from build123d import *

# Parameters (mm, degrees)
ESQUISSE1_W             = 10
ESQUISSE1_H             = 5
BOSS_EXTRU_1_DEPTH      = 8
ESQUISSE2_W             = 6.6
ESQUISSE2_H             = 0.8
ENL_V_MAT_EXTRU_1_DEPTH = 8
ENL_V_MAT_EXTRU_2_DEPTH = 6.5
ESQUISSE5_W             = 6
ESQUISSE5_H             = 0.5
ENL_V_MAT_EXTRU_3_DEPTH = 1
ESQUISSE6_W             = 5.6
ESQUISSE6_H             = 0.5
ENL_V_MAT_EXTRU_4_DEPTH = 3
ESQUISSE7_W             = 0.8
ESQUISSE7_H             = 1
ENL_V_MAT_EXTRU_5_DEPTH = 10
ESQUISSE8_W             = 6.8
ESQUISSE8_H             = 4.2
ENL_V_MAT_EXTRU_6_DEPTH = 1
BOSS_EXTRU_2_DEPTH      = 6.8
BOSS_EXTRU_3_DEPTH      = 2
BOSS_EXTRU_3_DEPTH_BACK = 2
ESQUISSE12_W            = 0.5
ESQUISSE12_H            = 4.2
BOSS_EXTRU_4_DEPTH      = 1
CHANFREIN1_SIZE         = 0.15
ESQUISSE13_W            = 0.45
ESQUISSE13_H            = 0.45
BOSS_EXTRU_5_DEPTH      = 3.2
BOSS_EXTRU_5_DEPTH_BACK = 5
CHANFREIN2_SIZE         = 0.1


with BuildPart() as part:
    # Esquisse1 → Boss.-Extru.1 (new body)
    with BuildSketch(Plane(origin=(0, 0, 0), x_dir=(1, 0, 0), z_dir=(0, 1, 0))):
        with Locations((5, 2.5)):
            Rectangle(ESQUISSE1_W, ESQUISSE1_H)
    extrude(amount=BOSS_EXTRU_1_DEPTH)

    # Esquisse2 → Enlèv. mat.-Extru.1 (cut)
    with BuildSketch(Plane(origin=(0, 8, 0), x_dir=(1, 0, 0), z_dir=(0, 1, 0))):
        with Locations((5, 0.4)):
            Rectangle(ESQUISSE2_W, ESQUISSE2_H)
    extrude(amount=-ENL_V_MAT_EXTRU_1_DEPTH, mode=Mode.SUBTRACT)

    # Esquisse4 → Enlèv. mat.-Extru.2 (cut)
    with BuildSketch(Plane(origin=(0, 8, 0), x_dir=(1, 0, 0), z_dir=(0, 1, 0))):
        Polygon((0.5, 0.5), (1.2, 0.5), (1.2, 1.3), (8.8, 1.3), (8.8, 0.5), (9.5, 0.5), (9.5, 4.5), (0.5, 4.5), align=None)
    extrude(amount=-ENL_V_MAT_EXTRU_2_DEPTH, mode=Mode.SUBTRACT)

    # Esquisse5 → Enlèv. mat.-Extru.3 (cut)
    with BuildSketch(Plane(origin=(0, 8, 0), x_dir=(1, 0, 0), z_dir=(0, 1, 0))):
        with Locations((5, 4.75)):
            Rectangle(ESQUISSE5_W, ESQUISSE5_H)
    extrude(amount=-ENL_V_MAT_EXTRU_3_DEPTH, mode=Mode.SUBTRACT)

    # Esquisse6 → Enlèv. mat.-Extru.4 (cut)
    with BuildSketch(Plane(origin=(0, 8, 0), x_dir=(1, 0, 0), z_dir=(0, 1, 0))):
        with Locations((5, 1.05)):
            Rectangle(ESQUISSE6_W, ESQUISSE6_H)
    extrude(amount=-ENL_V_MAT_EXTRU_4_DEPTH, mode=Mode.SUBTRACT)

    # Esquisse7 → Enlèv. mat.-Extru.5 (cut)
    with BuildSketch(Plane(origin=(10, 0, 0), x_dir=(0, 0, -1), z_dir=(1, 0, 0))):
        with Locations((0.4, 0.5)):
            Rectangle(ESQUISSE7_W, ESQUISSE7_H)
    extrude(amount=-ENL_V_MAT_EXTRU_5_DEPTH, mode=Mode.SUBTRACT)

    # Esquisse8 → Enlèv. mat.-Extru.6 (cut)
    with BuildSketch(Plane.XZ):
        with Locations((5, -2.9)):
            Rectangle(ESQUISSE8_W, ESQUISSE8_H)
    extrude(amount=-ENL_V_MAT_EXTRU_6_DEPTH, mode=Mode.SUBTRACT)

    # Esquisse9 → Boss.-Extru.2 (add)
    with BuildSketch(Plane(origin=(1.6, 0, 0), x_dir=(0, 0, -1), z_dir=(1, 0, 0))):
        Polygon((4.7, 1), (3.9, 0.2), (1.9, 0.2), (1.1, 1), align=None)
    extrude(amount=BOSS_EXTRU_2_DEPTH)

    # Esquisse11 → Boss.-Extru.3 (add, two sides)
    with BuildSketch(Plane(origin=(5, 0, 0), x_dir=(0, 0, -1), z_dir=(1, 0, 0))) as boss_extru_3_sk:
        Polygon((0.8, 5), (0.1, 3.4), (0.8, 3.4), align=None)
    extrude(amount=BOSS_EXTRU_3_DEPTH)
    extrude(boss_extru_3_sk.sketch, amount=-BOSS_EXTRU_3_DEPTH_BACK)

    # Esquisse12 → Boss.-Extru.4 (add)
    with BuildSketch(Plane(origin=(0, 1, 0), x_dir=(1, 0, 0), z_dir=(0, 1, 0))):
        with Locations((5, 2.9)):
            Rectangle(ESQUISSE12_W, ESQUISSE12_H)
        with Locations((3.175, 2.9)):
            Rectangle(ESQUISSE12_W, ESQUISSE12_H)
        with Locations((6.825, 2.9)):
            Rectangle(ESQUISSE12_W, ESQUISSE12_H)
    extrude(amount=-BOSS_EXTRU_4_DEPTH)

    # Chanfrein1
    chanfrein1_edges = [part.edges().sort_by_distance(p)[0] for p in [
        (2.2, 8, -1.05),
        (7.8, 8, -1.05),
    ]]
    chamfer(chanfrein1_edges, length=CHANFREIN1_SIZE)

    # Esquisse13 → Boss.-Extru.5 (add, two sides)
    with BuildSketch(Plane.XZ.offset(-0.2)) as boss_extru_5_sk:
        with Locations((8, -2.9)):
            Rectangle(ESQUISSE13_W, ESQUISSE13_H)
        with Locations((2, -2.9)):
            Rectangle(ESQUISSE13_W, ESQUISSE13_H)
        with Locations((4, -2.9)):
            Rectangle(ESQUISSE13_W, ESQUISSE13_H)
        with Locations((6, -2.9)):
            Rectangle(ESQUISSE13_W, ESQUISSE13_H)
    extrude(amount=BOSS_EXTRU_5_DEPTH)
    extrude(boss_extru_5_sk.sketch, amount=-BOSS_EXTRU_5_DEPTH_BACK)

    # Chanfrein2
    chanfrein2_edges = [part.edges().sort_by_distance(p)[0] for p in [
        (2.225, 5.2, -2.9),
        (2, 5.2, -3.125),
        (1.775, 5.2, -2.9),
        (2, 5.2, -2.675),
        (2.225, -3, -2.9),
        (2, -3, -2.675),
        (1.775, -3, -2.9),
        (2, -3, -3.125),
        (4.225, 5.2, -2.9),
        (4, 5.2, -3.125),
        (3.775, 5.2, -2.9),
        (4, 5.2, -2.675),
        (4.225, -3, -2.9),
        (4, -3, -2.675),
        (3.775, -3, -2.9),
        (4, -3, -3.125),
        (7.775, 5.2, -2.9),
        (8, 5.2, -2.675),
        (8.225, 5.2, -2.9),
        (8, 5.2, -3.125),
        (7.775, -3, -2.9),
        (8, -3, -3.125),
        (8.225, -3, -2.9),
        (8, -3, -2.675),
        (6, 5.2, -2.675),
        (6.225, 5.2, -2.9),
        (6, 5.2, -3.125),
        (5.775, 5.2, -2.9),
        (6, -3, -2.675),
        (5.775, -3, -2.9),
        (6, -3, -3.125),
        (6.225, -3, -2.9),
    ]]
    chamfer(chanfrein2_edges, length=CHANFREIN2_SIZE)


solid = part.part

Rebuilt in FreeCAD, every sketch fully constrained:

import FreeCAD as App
import Part
import Sketcher


def edges_at(feature, points):
    """Names of the edges that pass closest to the given points."""
    edges = feature.Shape.Edges
    near = lambda p: min(range(len(edges)), key=lambda i: edges[i].distToShape(Part.Vertex(*p))[0])
    return sorted({f"Edge{near(p) + 1}" for p in points})

doc = App.newDocument("Part")
body = doc.addObject("PartDesign::Body", "Body")

sketch1 = body.newObject("Sketcher::SketchObject", "Sketch")
sketch1.AttachmentSupport = (doc.getObject("XZ_Plane"), [""])
sketch1.MapMode = "FlatFace"
sketch1.addGeometry([
    Part.LineSegment(App.Vector(0, -5, 0), App.Vector(0, 0, 0)),
    Part.LineSegment(App.Vector(0, 0, 0), App.Vector(10, 0, 0)),
    Part.LineSegment(App.Vector(10, 0, 0), App.Vector(10, -5, 0)),
    Part.LineSegment(App.Vector(10, -5, 0), App.Vector(0, -5, 0)),
], False)
sketch1.addConstraint([
    Sketcher.Constraint("Coincident", 0, 2, 1, 1),
    Sketcher.Constraint("Coincident", 1, 2, 2, 1),
    Sketcher.Constraint("Coincident", 2, 2, 3, 1),
    Sketcher.Constraint("Coincident", 3, 2, 0, 1),
    Sketcher.Constraint("Vertical", 0),
    Sketcher.Constraint("Horizontal", 1),
    Sketcher.Constraint("Vertical", 2),
    Sketcher.Constraint("Horizontal", 3),
    Sketcher.Constraint("Coincident", 0, 2, -1, 1),
    Sketcher.Constraint("DistanceX", 1, 1, 1, 2, 10.0),
    Sketcher.Constraint("DistanceY", 0, 1, 0, 2, 5.0),
])
pad1 = body.newObject("PartDesign::Pad", "Pad")
pad1.Profile = sketch1
pad1.Length = 8
pad1.Reversed = True

sketch2 = body.newObject("Sketcher::SketchObject", "Sketch001")
sketch2.AttachmentSupport = (doc.getObject("XZ_Plane"), [""])
sketch2.MapMode = "FlatFace"
sketch2.AttachmentOffset = App.Placement(App.Vector(0, 0, -8), App.Rotation())
sketch2.addGeometry([
    Part.LineSegment(App.Vector(1.7, -0.8, 0), App.Vector(1.7, 0, 0)),
    Part.LineSegment(App.Vector(1.7, 0, 0), App.Vector(8.3, 0, 0)),
    Part.LineSegment(App.Vector(8.3, 0, 0), App.Vector(8.3, -0.8, 0)),
    Part.LineSegment(App.Vector(8.3, -0.8, 0), App.Vector(1.7, -0.8, 0)),
], False)
sketch2.addConstraint([
    Sketcher.Constraint("Coincident", 0, 2, 1, 1),
    Sketcher.Constraint("Coincident", 1, 2, 2, 1),
    Sketcher.Constraint("Coincident", 2, 2, 3, 1),
    Sketcher.Constraint("Coincident", 3, 2, 0, 1),
    Sketcher.Constraint("Vertical", 0),
    Sketcher.Constraint("Horizontal", 1),
    Sketcher.Constraint("Vertical", 2),
    Sketcher.Constraint("Horizontal", 3),
    Sketcher.Constraint("PointOnObject", 0, 2, -1),
    Sketcher.Constraint("DistanceX", 1, 1, 1, 2, 6.6),
    Sketcher.Constraint("DistanceY", 0, 1, 0, 2, 0.8),
    Sketcher.Constraint("DistanceX", -1, 1, 0, 2, 1.7),
])
pocket1 = body.newObject("PartDesign::Pocket", "Pocket")
pocket1.Profile = sketch2
pocket1.Length = 8
pocket1.Reversed = True

sketch3 = body.newObject("Sketcher::SketchObject", "Sketch002")
sketch3.AttachmentSupport = (doc.getObject("XZ_Plane"), [""])
sketch3.MapMode = "FlatFace"
sketch3.AttachmentOffset = App.Placement(App.Vector(0, 0, -8), App.Rotation())
sketch3.addGeometry([
    Part.LineSegment(App.Vector(0.5, -0.5, 0), App.Vector(1.2, -0.5, 0)),
    Part.LineSegment(App.Vector(1.2, -0.5, 0), App.Vector(1.2, -1.3, 0)),
    Part.LineSegment(App.Vector(1.2, -1.3, 0), App.Vector(8.8, -1.3, 0)),
    Part.LineSegment(App.Vector(8.8, -1.3, 0), App.Vector(8.8, -0.5, 0)),
    Part.LineSegment(App.Vector(8.8, -0.5, 0), App.Vector(9.5, -0.5, 0)),
    Part.LineSegment(App.Vector(9.5, -0.5, 0), App.Vector(9.5, -4.5, 0)),
    Part.LineSegment(App.Vector(9.5, -4.5, 0), App.Vector(0.5, -4.5, 0)),
    Part.LineSegment(App.Vector(0.5, -4.5, 0), App.Vector(0.5, -0.5, 0)),
], False)
sketch3.addConstraint([
    Sketcher.Constraint("Coincident", 0, 2, 1, 1),
    Sketcher.Constraint("Coincident", 1, 2, 2, 1),
    Sketcher.Constraint("Coincident", 2, 2, 3, 1),
    Sketcher.Constraint("Coincident", 3, 2, 4, 1),
    Sketcher.Constraint("Coincident", 4, 2, 5, 1),
    Sketcher.Constraint("Coincident", 5, 2, 6, 1),
    Sketcher.Constraint("Coincident", 6, 2, 7, 1),
    Sketcher.Constraint("Coincident", 7, 2, 0, 1),
    Sketcher.Constraint("Horizontal", 0),
    Sketcher.Constraint("Vertical", 1),
    Sketcher.Constraint("Horizontal", 2),
    Sketcher.Constraint("Vertical", 3),
    Sketcher.Constraint("Horizontal", 4),
    Sketcher.Constraint("Vertical", 5),
    Sketcher.Constraint("Horizontal", 6),
    Sketcher.Constraint("Vertical", 7),
    Sketcher.Constraint("Horizontal", 0, 2, 3, 2),
    Sketcher.Constraint("Equal", 0, 4),
    Sketcher.Constraint("DistanceX", 6, 2, 6, 1, 9.0),
    Sketcher.Constraint("DistanceY", 5, 2, 5, 1, 4.0),
    Sketcher.Constraint("DistanceX", 0, 1, 0, 2, 0.7),
    Sketcher.Constraint("DistanceY", 1, 2, 1, 1, 0.8),
    Sketcher.Constraint("DistanceX", -1, 1, 0, 2, 1.2),
    Sketcher.Constraint("DistanceY", 0, 2, -1, 1, 0.5),
])
pocket2 = body.newObject("PartDesign::Pocket", "Pocket001")
pocket2.Profile = sketch3
pocket2.Length = 6.5
pocket2.Reversed = True

sketch4 = body.newObject("Sketcher::SketchObject", "Sketch003")
sketch4.AttachmentSupport = (doc.getObject("XZ_Plane"), [""])
sketch4.MapMode = "FlatFace"
sketch4.AttachmentOffset = App.Placement(App.Vector(0, 0, -8), App.Rotation())
sketch4.addGeometry([
    Part.LineSegment(App.Vector(2, -5, 0), App.Vector(2, -4.5, 0)),
    Part.LineSegment(App.Vector(2, -4.5, 0), App.Vector(8, -4.5, 0)),
    Part.LineSegment(App.Vector(8, -4.5, 0), App.Vector(8, -5, 0)),
    Part.LineSegment(App.Vector(8, -5, 0), App.Vector(2, -5, 0)),
], False)
sketch4.addConstraint([
    Sketcher.Constraint("Coincident", 0, 2, 1, 1),
    Sketcher.Constraint("Coincident", 1, 2, 2, 1),
    Sketcher.Constraint("Coincident", 2, 2, 3, 1),
    Sketcher.Constraint("Coincident", 3, 2, 0, 1),
    Sketcher.Constraint("Vertical", 0),
    Sketcher.Constraint("Horizontal", 1),
    Sketcher.Constraint("Vertical", 2),
    Sketcher.Constraint("Horizontal", 3),
    Sketcher.Constraint("DistanceX", 1, 1, 1, 2, 6.0),
    Sketcher.Constraint("DistanceY", 0, 1, 0, 2, 0.5),
    Sketcher.Constraint("DistanceX", -1, 1, 0, 2, 2.0),
    Sketcher.Constraint("DistanceY", 2, 2, -1, 1, 5.0),
])
pocket3 = body.newObject("PartDesign::Pocket", "Pocket002")
pocket3.Profile = sketch4
pocket3.Length = 1
pocket3.Reversed = True

sketch5 = body.newObject("Sketcher::SketchObject", "Sketch004")
sketch5.AttachmentSupport = (doc.getObject("XZ_Plane"), [""])
sketch5.MapMode = "FlatFace"
sketch5.AttachmentOffset = App.Placement(App.Vector(0, 0, -8), App.Rotation())
sketch5.addGeometry([
    Part.LineSegment(App.Vector(2.2, -1.3, 0), App.Vector(2.2, -0.8, 0)),
    Part.LineSegment(App.Vector(2.2, -0.8, 0), App.Vector(7.8, -0.8, 0)),
    Part.LineSegment(App.Vector(7.8, -0.8, 0), App.Vector(7.8, -1.3, 0)),
    Part.LineSegment(App.Vector(7.8, -1.3, 0), App.Vector(2.2, -1.3, 0)),
], False)
sketch5.addConstraint([
    Sketcher.Constraint("Coincident", 0, 2, 1, 1),
    Sketcher.Constraint("Coincident", 1, 2, 2, 1),
    Sketcher.Constraint("Coincident", 2, 2, 3, 1),
    Sketcher.Constraint("Coincident", 3, 2, 0, 1),
    Sketcher.Constraint("Vertical", 0),
    Sketcher.Constraint("Horizontal", 1),
    Sketcher.Constraint("Vertical", 2),
    Sketcher.Constraint("Horizontal", 3),
    Sketcher.Constraint("DistanceX", 1, 1, 1, 2, 5.6),
    Sketcher.Constraint("DistanceY", 0, 1, 0, 2, 0.5),
    Sketcher.Constraint("DistanceX", -1, 1, 0, 2, 2.2),
    Sketcher.Constraint("DistanceY", 0, 2, -1, 1, 0.8),
])
pocket4 = body.newObject("PartDesign::Pocket", "Pocket003")
pocket4.Profile = sketch5
pocket4.Length = 3
pocket4.Reversed = True

sketch6 = body.newObject("Sketcher::SketchObject", "Sketch005")
sketch6.AttachmentSupport = (doc.getObject("YZ_Plane"), [""])
sketch6.MapMode = "FlatFace"
sketch6.AttachmentOffset = App.Placement(App.Vector(0, 0, 10), App.Rotation())
sketch6.addGeometry([
    Part.LineSegment(App.Vector(1, 0, 0), App.Vector(0, 0, 0)),
    Part.LineSegment(App.Vector(0, 0, 0), App.Vector(0, -0.8, 0)),
    Part.LineSegment(App.Vector(0, -0.8, 0), App.Vector(1, -0.8, 0)),
    Part.LineSegment(App.Vector(1, -0.8, 0), App.Vector(1, 0, 0)),
], False)
sketch6.addConstraint([
    Sketcher.Constraint("Coincident", 0, 2, 1, 1),
    Sketcher.Constraint("Coincident", 1, 2, 2, 1),
    Sketcher.Constraint("Coincident", 2, 2, 3, 1),
    Sketcher.Constraint("Coincident", 3, 2, 0, 1),
    Sketcher.Constraint("Horizontal", 0),
    Sketcher.Constraint("Vertical", 1),
    Sketcher.Constraint("Horizontal", 2),
    Sketcher.Constraint("Vertical", 3),
    Sketcher.Constraint("Coincident", 0, 2, -1, 1),
    Sketcher.Constraint("DistanceX", 0, 2, 0, 1, 1.0),
    Sketcher.Constraint("DistanceY", 1, 2, 1, 1, 0.8),
])
pocket5 = body.newObject("PartDesign::Pocket", "Pocket004")
pocket5.Profile = sketch6
pocket5.Length = 10

sketch7 = body.newObject("Sketcher::SketchObject", "Sketch006")
sketch7.AttachmentSupport = (doc.getObject("XZ_Plane"), [""])
sketch7.MapMode = "FlatFace"
sketch7.addGeometry([
    Part.LineSegment(App.Vector(1.6, -0.8, 0), App.Vector(1.6, -5, 0)),
    Part.LineSegment(App.Vector(1.6, -5, 0), App.Vector(8.4, -5, 0)),
    Part.LineSegment(App.Vector(8.4, -5, 0), App.Vector(8.4, -0.8, 0)),
    Part.LineSegment(App.Vector(8.4, -0.8, 0), App.Vector(1.6, -0.8, 0)),
], False)
sketch7.addConstraint([
    Sketcher.Constraint("Coincident", 0, 2, 1, 1),
    Sketcher.Constraint("Coincident", 1, 2, 2, 1),
    Sketcher.Constraint("Coincident", 2, 2, 3, 1),
    Sketcher.Constraint("Coincident", 3, 2, 0, 1),
    Sketcher.Constraint("Vertical", 0),
    Sketcher.Constraint("Horizontal", 1),
    Sketcher.Constraint("Vertical", 2),
    Sketcher.Constraint("Horizontal", 3),
    Sketcher.Constraint("DistanceX", 1, 1, 1, 2, 6.8),
    Sketcher.Constraint("DistanceY", 0, 2, 0, 1, 4.2),
    Sketcher.Constraint("DistanceY", 0, 2, -1, 1, 5.0),
    Sketcher.Constraint("DistanceX", -1, 1, 0, 2, 1.6),
])
pocket6 = body.newObject("PartDesign::Pocket", "Pocket005")
pocket6.Profile = sketch7
pocket6.Length = 1

sketch8 = body.newObject("Sketcher::SketchObject", "Sketch007")
sketch8.AttachmentSupport = (doc.getObject("YZ_Plane"), [""])
sketch8.MapMode = "FlatFace"
sketch8.AttachmentOffset = App.Placement(App.Vector(0, 0, 1.6), App.Rotation())
sketch8.addGeometry([
    Part.LineSegment(App.Vector(0.2, -3.9, 0), App.Vector(1, -4.7, 0)),
    Part.LineSegment(App.Vector(1, -4.7, 0), App.Vector(1, -1.1, 0)),
    Part.LineSegment(App.Vector(1, -1.1, 0), App.Vector(0.2, -1.9, 0)),
    Part.LineSegment(App.Vector(0.2, -1.9, 0), App.Vector(0.2, -3.9, 0)),
], False)
sketch8.addConstraint([
    Sketcher.Constraint("Coincident", 0, 2, 1, 1),
    Sketcher.Constraint("Coincident", 1, 2, 2, 1),
    Sketcher.Constraint("Coincident", 2, 2, 3, 1),
    Sketcher.Constraint("Coincident", 3, 2, 0, 1),
    Sketcher.Constraint("Vertical", 1),
    Sketcher.Constraint("Vertical", 3),
    Sketcher.Constraint("Perpendicular", 0, 2),
    Sketcher.Constraint("Equal", 0, 2),
    Sketcher.Constraint("DistanceY", 3, 2, 3, 1, 2.0),
    Sketcher.Constraint("DistanceY", 1, 1, 1, 2, 3.6),
    Sketcher.Constraint("DistanceX", -1, 1, 0, 2, 1.0),
    Sketcher.Constraint("DistanceY", 0, 2, -1, 1, 4.7),
])
pad2 = body.newObject("PartDesign::Pad", "Pad001")
pad2.Profile = sketch8
pad2.Length = 6.8

sketch9 = body.newObject("Sketcher::SketchObject", "Sketch008")
sketch9.AttachmentSupport = (doc.getObject("YZ_Plane"), [""])
sketch9.MapMode = "FlatFace"
sketch9.AttachmentOffset = App.Placement(App.Vector(0, 0, 5), App.Rotation())
sketch9.addGeometry([
    Part.LineSegment(App.Vector(5, -0.8, 0), App.Vector(3.4, -0.1, 0)),
    Part.LineSegment(App.Vector(3.4, -0.1, 0), App.Vector(3.4, -0.8, 0)),
    Part.LineSegment(App.Vector(3.4, -0.8, 0), App.Vector(5, -0.8, 0)),
], False)
sketch9.addConstraint([
    Sketcher.Constraint("Coincident", 0, 2, 1, 1),
    Sketcher.Constraint("Coincident", 1, 2, 2, 1),
    Sketcher.Constraint("Coincident", 2, 2, 0, 1),
    Sketcher.Constraint("Vertical", 1),
    Sketcher.Constraint("Horizontal", 2),
    Sketcher.Constraint("DistanceX", 2, 1, 2, 2, 1.6),
    Sketcher.Constraint("DistanceY", 1, 2, 1, 1, 0.7),
    Sketcher.Constraint("DistanceX", -1, 1, 2, 2, 5.0),
    Sketcher.Constraint("DistanceY", 0, 2, -1, 1, 0.1),
])
pad3 = body.newObject("PartDesign::Pad", "Pad002")
pad3.Profile = sketch9
pad3.Type = "TwoLengths"
pad3.Length = 2
pad3.Length2 = 2

sketch10 = body.newObject("Sketcher::SketchObject", "Sketch009")
sketch10.AttachmentSupport = (doc.getObject("XZ_Plane"), [""])
sketch10.MapMode = "FlatFace"
sketch10.AttachmentOffset = App.Placement(App.Vector(0, 0, -1), App.Rotation())
sketch10.addGeometry([
    Part.LineSegment(App.Vector(4.8, -5, 0), App.Vector(4.8, -0.8, 0)),
    Part.LineSegment(App.Vector(4.8, -0.8, 0), App.Vector(5.2, -0.8, 0)),
    Part.LineSegment(App.Vector(5.2, -0.8, 0), App.Vector(5.2, -5, 0)),
    Part.LineSegment(App.Vector(5.2, -5, 0), App.Vector(4.8, -5, 0)),
    Part.LineSegment(App.Vector(2.9, -5, 0), App.Vector(2.9, -0.8, 0)),
    Part.LineSegment(App.Vector(2.9, -0.8, 0), App.Vector(3.4, -0.8, 0)),
    Part.LineSegment(App.Vector(3.4, -0.8, 0), App.Vector(3.4, -5, 0)),
    Part.LineSegment(App.Vector(3.4, -5, 0), App.Vector(2.9, -5, 0)),
    Part.LineSegment(App.Vector(6.6, -5, 0), App.Vector(6.6, -0.8, 0)),
    Part.LineSegment(App.Vector(6.6, -0.8, 0), App.Vector(7.1, -0.8, 0)),
    Part.LineSegment(App.Vector(7.1, -0.8, 0), App.Vector(7.1, -5, 0)),
    Part.LineSegment(App.Vector(7.1, -5, 0), App.Vector(6.6, -5, 0)),
], False)
sketch10.addConstraint([
    Sketcher.Constraint("Coincident", 0, 2, 1, 1),
    Sketcher.Constraint("Coincident", 1, 2, 2, 1),
    Sketcher.Constraint("Coincident", 2, 2, 3, 1),
    Sketcher.Constraint("Coincident", 3, 2, 0, 1),
    Sketcher.Constraint("Coincident", 4, 2, 5, 1),
    Sketcher.Constraint("Coincident", 5, 2, 6, 1),
    Sketcher.Constraint("Coincident", 6, 2, 7, 1),
    Sketcher.Constraint("Coincident", 7, 2, 4, 1),
    Sketcher.Constraint("Coincident", 8, 2, 9, 1),
    Sketcher.Constraint("Coincident", 9, 2, 10, 1),
    Sketcher.Constraint("Coincident", 10, 2, 11, 1),
    Sketcher.Constraint("Coincident", 11, 2, 8, 1),
    Sketcher.Constraint("Vertical", 0),
    Sketcher.Constraint("Horizontal", 1),
    Sketcher.Constraint("Vertical", 2),
    Sketcher.Constraint("Horizontal", 3),
    Sketcher.Constraint("Vertical", 4),
    Sketcher.Constraint("Horizontal", 5),
    Sketcher.Constraint("Vertical", 6),
    Sketcher.Constraint("Horizontal", 7),
    Sketcher.Constraint("Vertical", 8),
    Sketcher.Constraint("Horizontal", 9),
    Sketcher.Constraint("Vertical", 10),
    Sketcher.Constraint("Horizontal", 11),
    Sketcher.Constraint("Horizontal", 1, 2, 4, 2),
    Sketcher.Constraint("Horizontal", 3, 2, 6, 2),
    Sketcher.Constraint("Horizontal", 5, 2, 8, 2),
    Sketcher.Constraint("Horizontal", 7, 2, 10, 2),
    Sketcher.Constraint("Equal", 3, 5),
    Sketcher.Constraint("Equal", 7, 9),
    Sketcher.Constraint("DistanceX", 1, 1, 1, 2, 0.5),
    Sketcher.Constraint("DistanceY", 0, 1, 0, 2, 4.2),
    Sketcher.Constraint("DistanceY", 2, 2, -1, 1, 5.0),
    Sketcher.Constraint("DistanceX", -1, 1, 0, 2, 4.75),
    Sketcher.Constraint("DistanceX", 5, 2, 8, 2, 3.15),
    Sketcher.Constraint("DistanceX", -1, 1, 4, 2, 2.925),
])
pad4 = body.newObject("PartDesign::Pad", "Pad003")
pad4.Profile = sketch10
pad4.Length = 1
doc.recompute()

chamfer = body.newObject("PartDesign::Chamfer", "Chamfer")
chamfer.Base = (pad4, edges_at(pad4, [(2.2, 8, -1.05), (7.8, 8, -1.05)]))
chamfer.Size = 0.15

sketch11 = body.newObject("Sketcher::SketchObject", "Sketch010")
sketch11.AttachmentSupport = (doc.getObject("XZ_Plane"), [""])
sketch11.MapMode = "FlatFace"
sketch11.AttachmentOffset = App.Placement(App.Vector(0, 0, -0.2), App.Rotation())
sketch11.addGeometry([
    Part.LineSegment(App.Vector(7.78, -2.67, 0), App.Vector(7.78, -3.12, 0)),
    Part.LineSegment(App.Vector(7.78, -3.12, 0), App.Vector(8.22, -3.12, 0)),
    Part.LineSegment(App.Vector(8.22, -3.12, 0), App.Vector(8.22, -2.67, 0)),
    Part.LineSegment(App.Vector(8.22, -2.67, 0), App.Vector(7.78, -2.67, 0)),
    Part.LineSegment(App.Vector(1.77, -2.67, 0), App.Vector(1.77, -3.12, 0)),
    Part.LineSegment(App.Vector(1.77, -3.12, 0), App.Vector(2.23, -3.12, 0)),
    Part.LineSegment(App.Vector(2.23, -3.12, 0), App.Vector(2.23, -2.67, 0)),
    Part.LineSegment(App.Vector(2.23, -2.67, 0), App.Vector(1.77, -2.67, 0)),
    Part.LineSegment(App.Vector(3.77, -2.67, 0), App.Vector(3.77, -3.12, 0)),
    Part.LineSegment(App.Vector(3.77, -3.12, 0), App.Vector(4.22, -3.12, 0)),
    Part.LineSegment(App.Vector(4.22, -3.12, 0), App.Vector(4.22, -2.67, 0)),
    Part.LineSegment(App.Vector(4.22, -2.67, 0), App.Vector(3.77, -2.67, 0)),
    Part.LineSegment(App.Vector(5.78, -2.67, 0), App.Vector(5.78, -3.12, 0)),
    Part.LineSegment(App.Vector(5.78, -3.12, 0), App.Vector(6.22, -3.12, 0)),
    Part.LineSegment(App.Vector(6.22, -3.12, 0), App.Vector(6.22, -2.67, 0)),
    Part.LineSegment(App.Vector(6.22, -2.67, 0), App.Vector(5.78, -2.67, 0)),
], False)
sketch11.addConstraint([
    Sketcher.Constraint("Coincident", 0, 2, 1, 1),
    Sketcher.Constraint("Coincident", 1, 2, 2, 1),
    Sketcher.Constraint("Coincident", 2, 2, 3, 1),
    Sketcher.Constraint("Coincident", 3, 2, 0, 1),
    Sketcher.Constraint("Coincident", 4, 2, 5, 1),
    Sketcher.Constraint("Coincident", 5, 2, 6, 1),
    Sketcher.Constraint("Coincident", 6, 2, 7, 1),
    Sketcher.Constraint("Coincident", 7, 2, 4, 1),
    Sketcher.Constraint("Coincident", 8, 2, 9, 1),
    Sketcher.Constraint("Coincident", 9, 2, 10, 1),
    Sketcher.Constraint("Coincident", 10, 2, 11, 1),
    Sketcher.Constraint("Coincident", 11, 2, 8, 1),
    Sketcher.Constraint("Coincident", 12, 2, 13, 1),
    Sketcher.Constraint("Coincident", 13, 2, 14, 1),
    Sketcher.Constraint("Coincident", 14, 2, 15, 1),
    Sketcher.Constraint("Coincident", 15, 2, 12, 1),
    Sketcher.Constraint("Vertical", 0),
    Sketcher.Constraint("Horizontal", 1),
    Sketcher.Constraint("Vertical", 2),
    Sketcher.Constraint("Horizontal", 3),
    Sketcher.Constraint("Vertical", 4),
    Sketcher.Constraint("Horizontal", 5),
    Sketcher.Constraint("Vertical", 6),
    Sketcher.Constraint("Horizontal", 7),
    Sketcher.Constraint("Vertical", 8),
    Sketcher.Constraint("Horizontal", 9),
    Sketcher.Constraint("Vertical", 10),
    Sketcher.Constraint("Horizontal", 11),
    Sketcher.Constraint("Vertical", 12),
    Sketcher.Constraint("Horizontal", 13),
    Sketcher.Constraint("Vertical", 14),
    Sketcher.Constraint("Horizontal", 15),
    Sketcher.Constraint("Horizontal", 1, 2, 4, 2),
    Sketcher.Constraint("Horizontal", 3, 2, 6, 2),
    Sketcher.Constraint("Horizontal", 5, 2, 8, 2),
    Sketcher.Constraint("Horizontal", 7, 2, 10, 2),
    Sketcher.Constraint("Horizontal", 9, 2, 12, 2),
    Sketcher.Constraint("Horizontal", 11, 2, 14, 2),
    Sketcher.Constraint("Equal", 3, 5),
    Sketcher.Constraint("Equal", 7, 9),
    Sketcher.Constraint("Equal", 11, 13),
    Sketcher.Constraint("Equal", 15, 0),
    Sketcher.Constraint("DistanceX", 4, 2, 0, 2, 6.0),
    Sketcher.Constraint("DistanceX", 4, 2, 8, 2, 2.0),
    Sketcher.Constraint("DistanceX", 12, 2, 0, 2, 2.0),
    Sketcher.Constraint("DistanceX", 1, 1, 1, 2, 0.45),
    Sketcher.Constraint("DistanceX", -1, 1, 0, 2, 7.775),
    Sketcher.Constraint("DistanceY", 0, 2, -1, 1, 3.125),
])
pad5 = body.newObject("PartDesign::Pad", "Pad004")
pad5.Profile = sketch11
pad5.Type = "TwoLengths"
pad5.Length = 3.2
pad5.Length2 = 5
doc.recompute()

chamfer2 = body.newObject("PartDesign::Chamfer", "Chamfer001")
chamfer2.Base = (pad5, edges_at(pad5, [
    (2.225, 5.2, -2.9),
    (2, 5.2, -3.125),
    (1.775, 5.2, -2.9),
    (2, 5.2, -2.675),
    (2.225, -3, -2.9),
    (2, -3, -2.675),
    (1.775, -3, -2.9),
    (2, -3, -3.125),
    (4.225, 5.2, -2.9),
    (4, 5.2, -3.125),
    (3.775, 5.2, -2.9),
    (4, 5.2, -2.675),
    (4.225, -3, -2.9),
    (4, -3, -2.675),
    (3.775, -3, -2.9),
    (4, -3, -3.125),
    (7.775, 5.2, -2.9),
    (8, 5.2, -2.675),
    (8.225, 5.2, -2.9),
    (8, 5.2, -3.125),
    (7.775, -3, -2.9),
    (8, -3, -3.125),
    (8.225, -3, -2.9),
    (8, -3, -2.675),
    (6, 5.2, -2.675),
    (6.225, 5.2, -2.9),
    (6, 5.2, -3.125),
    (5.775, 5.2, -2.9),
    (6, -3, -2.675),
    (5.775, -3, -2.9),
    (6, -3, -3.125),
    (6.225, -3, -2.9),
]))
chamfer2.Size = 0.1

doc.recompute()
